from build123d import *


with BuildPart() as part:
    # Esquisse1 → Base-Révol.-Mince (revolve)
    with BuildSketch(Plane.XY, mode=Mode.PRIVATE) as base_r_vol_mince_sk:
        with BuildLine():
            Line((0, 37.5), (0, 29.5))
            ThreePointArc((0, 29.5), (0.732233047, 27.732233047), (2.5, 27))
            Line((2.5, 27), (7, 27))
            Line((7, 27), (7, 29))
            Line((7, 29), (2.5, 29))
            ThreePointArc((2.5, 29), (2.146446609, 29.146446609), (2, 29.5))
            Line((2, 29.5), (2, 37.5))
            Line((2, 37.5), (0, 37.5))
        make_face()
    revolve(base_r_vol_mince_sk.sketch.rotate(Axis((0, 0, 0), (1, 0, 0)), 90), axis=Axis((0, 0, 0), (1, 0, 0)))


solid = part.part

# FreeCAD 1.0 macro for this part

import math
import FreeCAD as App
import Part
import Sketcher

V = App.Vector

doc = App.newDocument("Part")
body = doc.addObject("PartDesign::Body", "Body")

# Sketch on XY plane
sketch1 = body.newObject("Sketcher::SketchObject", "Sketch")
sketch1.AttachmentSupport = (doc.getObject("XY_Plane"), [""])
sketch1.MapMode = "FlatFace"
sketch1.addGeometry([
    Part.LineSegment(V(0, 37.5, 0), V(0, 29.5, 0)),  # 0
    Part.ArcOfCircle(Part.Circle(V(2.5, 29.5, 0), V(0, 0, 1), 2.5), math.radians(180), math.radians(270)),  # 1
    Part.LineSegment(V(2.5, 27, 0), V(7, 27, 0)),  # 2
    Part.LineSegment(V(7, 27, 0), V(7, 29, 0)),  # 3
    Part.LineSegment(V(7, 29, 0), V(2.5, 29, 0)),  # 4
    Part.ArcOfCircle(Part.Circle(V(2.5, 29.5, 0), V(0, 0, 1), 0.5), math.radians(180), math.radians(270)),  # 5
    Part.LineSegment(V(2, 29.5, 0), V(2, 37.5, 0)),  # 6
    Part.LineSegment(V(2, 37.5, 0), V(0, 37.5, 0)),  # 7
], False)
sketch1.addConstraint([
    Sketcher.Constraint("Tangent", 0, 2, 1, 1),
    Sketcher.Constraint("Tangent", 1, 2, 2, 1),
    Sketcher.Constraint("Coincident", 2, 2, 3, 1),
    Sketcher.Constraint("Coincident", 3, 2, 4, 1),
    Sketcher.Constraint("Tangent", 4, 2, 5, 2),
    Sketcher.Constraint("Tangent", 5, 1, 6, 1),
    Sketcher.Constraint("Coincident", 6, 2, 7, 1),
    Sketcher.Constraint("Coincident", 7, 2, 0, 1),
    Sketcher.Constraint("Vertical", 0),
    Sketcher.Constraint("Horizontal", 2),
    Sketcher.Constraint("Vertical", 3),
    Sketcher.Constraint("Horizontal", 4),
    Sketcher.Constraint("Vertical", 6),
    Sketcher.Constraint("Horizontal", 7),
    Sketcher.Constraint("Coincident", 5, 3, 1, 3),
    Sketcher.Constraint("PointOnObject", 0, 2, -2),
    Sketcher.Constraint("Radius", 1, 2.5),
    Sketcher.Constraint("Radius", 5, 0.5),
    Sketcher.Constraint("DistanceY", 0, 2, 0, 1, 8.0),
    Sketcher.Constraint("DistanceX", 2, 1, 2, 2, 4.5),
    Sketcher.Constraint("DistanceY", -1, 1, 1, 2, 27.0),
])
revolution = body.newObject("PartDesign::Revolution", "Revolution")
revolution.Profile = sketch1
revolution.ReferenceAxis = (sketch1, ["H_Axis"])
revolution.Angle = 360

doc.recompute()
